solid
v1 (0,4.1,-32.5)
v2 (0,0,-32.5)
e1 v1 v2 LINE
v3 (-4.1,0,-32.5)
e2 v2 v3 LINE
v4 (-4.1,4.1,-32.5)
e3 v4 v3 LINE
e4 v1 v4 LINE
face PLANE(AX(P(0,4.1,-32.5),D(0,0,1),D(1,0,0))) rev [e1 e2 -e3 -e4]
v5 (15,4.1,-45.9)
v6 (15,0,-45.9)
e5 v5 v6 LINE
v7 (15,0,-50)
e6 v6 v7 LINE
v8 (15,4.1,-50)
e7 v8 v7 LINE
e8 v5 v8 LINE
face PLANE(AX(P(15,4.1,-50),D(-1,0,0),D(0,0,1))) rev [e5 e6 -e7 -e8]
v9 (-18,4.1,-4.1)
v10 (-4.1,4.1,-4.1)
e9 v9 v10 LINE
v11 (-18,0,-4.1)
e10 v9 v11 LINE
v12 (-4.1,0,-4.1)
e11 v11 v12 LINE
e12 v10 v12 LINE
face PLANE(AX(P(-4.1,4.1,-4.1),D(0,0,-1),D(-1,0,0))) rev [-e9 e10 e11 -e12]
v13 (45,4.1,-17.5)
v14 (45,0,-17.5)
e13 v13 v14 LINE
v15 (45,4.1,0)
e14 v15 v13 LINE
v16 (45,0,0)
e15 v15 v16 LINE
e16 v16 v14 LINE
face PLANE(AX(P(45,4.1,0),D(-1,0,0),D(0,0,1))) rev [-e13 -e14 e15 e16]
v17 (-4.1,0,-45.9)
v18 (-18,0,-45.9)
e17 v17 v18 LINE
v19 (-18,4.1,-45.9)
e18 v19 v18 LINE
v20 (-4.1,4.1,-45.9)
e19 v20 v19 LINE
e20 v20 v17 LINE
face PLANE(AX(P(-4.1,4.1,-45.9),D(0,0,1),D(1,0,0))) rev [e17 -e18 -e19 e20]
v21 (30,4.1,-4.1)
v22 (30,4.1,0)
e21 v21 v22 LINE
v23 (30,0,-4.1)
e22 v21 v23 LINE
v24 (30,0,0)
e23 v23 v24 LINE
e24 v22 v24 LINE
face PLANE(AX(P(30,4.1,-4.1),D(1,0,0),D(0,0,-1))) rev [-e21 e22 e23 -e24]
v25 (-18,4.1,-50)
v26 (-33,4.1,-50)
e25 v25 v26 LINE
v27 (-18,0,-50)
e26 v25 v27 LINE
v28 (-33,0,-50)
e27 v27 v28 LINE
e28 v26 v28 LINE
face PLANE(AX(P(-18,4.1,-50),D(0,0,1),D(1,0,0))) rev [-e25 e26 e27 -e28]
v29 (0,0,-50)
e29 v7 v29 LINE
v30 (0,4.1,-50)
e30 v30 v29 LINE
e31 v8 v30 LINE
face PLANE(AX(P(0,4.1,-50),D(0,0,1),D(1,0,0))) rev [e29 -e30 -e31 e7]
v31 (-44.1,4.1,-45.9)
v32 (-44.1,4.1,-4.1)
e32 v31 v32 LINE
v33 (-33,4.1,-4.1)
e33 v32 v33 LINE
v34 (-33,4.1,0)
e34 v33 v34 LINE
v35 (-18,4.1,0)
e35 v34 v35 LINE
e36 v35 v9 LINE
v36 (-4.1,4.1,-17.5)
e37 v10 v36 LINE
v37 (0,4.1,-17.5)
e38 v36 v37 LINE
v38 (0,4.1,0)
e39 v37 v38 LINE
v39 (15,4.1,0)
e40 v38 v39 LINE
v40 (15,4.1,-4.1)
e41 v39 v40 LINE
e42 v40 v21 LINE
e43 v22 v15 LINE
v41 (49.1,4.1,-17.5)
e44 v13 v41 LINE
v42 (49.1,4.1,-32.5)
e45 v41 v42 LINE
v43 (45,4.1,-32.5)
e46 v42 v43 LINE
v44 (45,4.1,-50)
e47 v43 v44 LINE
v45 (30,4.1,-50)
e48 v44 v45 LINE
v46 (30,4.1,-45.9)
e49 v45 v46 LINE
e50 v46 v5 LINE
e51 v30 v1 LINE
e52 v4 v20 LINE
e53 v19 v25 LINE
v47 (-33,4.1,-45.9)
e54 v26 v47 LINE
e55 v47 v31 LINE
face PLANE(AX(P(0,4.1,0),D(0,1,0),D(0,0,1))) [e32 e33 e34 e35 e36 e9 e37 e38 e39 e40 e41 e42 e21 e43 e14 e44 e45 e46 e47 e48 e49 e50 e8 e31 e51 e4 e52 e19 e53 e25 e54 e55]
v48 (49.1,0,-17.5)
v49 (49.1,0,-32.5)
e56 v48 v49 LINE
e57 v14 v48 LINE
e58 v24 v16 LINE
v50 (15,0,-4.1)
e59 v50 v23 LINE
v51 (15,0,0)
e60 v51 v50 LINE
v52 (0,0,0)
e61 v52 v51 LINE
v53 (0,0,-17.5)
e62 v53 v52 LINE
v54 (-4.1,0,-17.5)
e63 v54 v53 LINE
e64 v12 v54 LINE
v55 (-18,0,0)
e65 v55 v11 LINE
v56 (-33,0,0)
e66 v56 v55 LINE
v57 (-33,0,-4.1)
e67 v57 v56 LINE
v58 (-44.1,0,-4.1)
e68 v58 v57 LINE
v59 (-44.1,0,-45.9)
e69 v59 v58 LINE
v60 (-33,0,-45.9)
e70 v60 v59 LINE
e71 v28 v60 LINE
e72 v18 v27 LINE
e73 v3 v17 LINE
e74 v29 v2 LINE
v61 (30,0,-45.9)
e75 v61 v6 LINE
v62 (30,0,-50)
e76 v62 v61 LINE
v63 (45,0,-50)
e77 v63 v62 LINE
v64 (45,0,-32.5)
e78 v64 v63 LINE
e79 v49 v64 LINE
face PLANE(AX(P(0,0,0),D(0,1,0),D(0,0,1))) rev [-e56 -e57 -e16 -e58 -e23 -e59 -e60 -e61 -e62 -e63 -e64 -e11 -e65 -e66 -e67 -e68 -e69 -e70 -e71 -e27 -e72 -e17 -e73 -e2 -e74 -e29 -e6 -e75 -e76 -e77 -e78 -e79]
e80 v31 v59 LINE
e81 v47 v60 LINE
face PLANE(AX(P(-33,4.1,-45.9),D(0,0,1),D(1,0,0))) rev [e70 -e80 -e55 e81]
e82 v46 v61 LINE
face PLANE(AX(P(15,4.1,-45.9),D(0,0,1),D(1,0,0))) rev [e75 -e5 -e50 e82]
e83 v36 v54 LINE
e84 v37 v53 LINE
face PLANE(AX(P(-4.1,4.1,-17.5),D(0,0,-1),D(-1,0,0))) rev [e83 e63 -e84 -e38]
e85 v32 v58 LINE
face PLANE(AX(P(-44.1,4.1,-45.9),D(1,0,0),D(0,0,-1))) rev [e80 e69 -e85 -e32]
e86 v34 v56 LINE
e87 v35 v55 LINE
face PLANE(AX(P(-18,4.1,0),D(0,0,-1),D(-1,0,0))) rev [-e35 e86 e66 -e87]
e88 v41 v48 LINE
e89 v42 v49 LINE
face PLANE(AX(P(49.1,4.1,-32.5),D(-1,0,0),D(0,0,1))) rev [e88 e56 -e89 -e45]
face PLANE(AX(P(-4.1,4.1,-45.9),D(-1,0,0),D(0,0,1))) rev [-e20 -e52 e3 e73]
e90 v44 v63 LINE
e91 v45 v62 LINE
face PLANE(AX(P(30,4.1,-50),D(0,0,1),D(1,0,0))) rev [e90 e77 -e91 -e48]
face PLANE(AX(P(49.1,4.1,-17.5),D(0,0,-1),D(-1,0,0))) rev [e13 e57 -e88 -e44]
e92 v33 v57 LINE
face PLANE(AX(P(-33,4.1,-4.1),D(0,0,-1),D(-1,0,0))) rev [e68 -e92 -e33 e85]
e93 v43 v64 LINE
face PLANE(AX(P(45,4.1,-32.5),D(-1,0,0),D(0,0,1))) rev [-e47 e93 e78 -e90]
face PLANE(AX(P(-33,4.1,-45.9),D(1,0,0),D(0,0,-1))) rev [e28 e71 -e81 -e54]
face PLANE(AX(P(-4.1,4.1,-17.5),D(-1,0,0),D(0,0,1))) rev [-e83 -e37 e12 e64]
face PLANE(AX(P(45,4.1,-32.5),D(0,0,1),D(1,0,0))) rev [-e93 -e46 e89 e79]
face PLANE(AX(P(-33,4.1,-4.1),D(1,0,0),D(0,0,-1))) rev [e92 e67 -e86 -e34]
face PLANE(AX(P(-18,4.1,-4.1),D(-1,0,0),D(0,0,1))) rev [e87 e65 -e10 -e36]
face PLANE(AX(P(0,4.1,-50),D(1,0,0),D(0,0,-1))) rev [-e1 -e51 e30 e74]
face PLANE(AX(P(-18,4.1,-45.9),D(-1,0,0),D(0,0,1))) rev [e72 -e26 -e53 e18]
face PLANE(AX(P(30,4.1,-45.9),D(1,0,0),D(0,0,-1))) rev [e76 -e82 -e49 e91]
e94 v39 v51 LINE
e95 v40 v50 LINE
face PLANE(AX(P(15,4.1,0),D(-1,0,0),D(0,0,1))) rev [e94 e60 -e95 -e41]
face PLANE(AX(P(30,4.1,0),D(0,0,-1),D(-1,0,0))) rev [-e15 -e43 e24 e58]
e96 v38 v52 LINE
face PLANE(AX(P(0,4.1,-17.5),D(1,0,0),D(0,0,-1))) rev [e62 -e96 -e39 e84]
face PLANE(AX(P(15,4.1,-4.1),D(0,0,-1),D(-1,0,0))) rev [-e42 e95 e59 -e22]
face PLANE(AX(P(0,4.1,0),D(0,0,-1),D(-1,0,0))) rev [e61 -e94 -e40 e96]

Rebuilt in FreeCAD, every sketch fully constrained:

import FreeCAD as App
import Part
import Sketcher
from FreeCAD import Vector

doc = App.newDocument("Part")
body = doc.addObject("PartDesign::Body", "Body")

# Sketch on XZ plane
sketch1 = body.newObject("Sketcher::SketchObject", "Sketch")
sketch1.AttachmentSupport = (doc.getObject("XZ_Plane"), [""])
sketch1.MapMode = "FlatFace"
sketch1.addGeometry(Part.LineSegment(Vector(0, -32.5, 0), Vector(-4.1, -32.5, 0)), False)
sketch1.addGeometry(Part.LineSegment(Vector(-4.1, -32.5, 0), Vector(-4.1, -45.9, 0)), False)
sketch1.addGeometry(Part.LineSegment(Vector(-4.1, -45.9, 0), Vector(-18, -45.9, 0)), False)
sketch1.addGeometry(Part.LineSegment(Vector(-18, -45.9, 0), Vector(-18, -50, 0)), False)
sketch1.addGeometry(Part.LineSegment(Vector(-18, -50, 0), Vector(-33, -50, 0)), False)
sketch1.addGeometry(Part.LineSegment(Vector(-33, -50, 0), Vector(-33, -45.9, 0)), False)
sketch1.addGeometry(Part.LineSegment(Vector(-33, -45.9, 0), Vector(-44.1, -45.9, 0)), False)
sketch1.addGeometry(Part.LineSegment(Vector(-44.1, -45.9, 0), Vector(-44.1, -4.1, 0)), False)
sketch1.addGeometry(Part.LineSegment(Vector(-44.1, -4.1, 0), Vector(-33, -4.1, 0)), False)
sketch1.addGeometry(Part.LineSegment(Vector(-33, -4.1, 0), Vector(-33, 0, 0)), False)
sketch1.addGeometry(Part.LineSegment(Vector(-33, 0, 0), Vector(-18, 0, 0)), False)
sketch1.addGeometry(Part.LineSegment(Vector(-18, 0, 0), Vector(-18, -4.1, 0)), False)
sketch1.addGeometry(Part.LineSegment(Vector(-18, -4.1, 0), Vector(-4.1, -4.1, 0)), False)
sketch1.addGeometry(Part.LineSegment(Vector(-4.1, -4.1, 0), Vector(-4.1, -17.5, 0)), False)
sketch1.addGeometry(Part.LineSegment(Vector(-4.1, -17.5, 0), Vector(0, -17.5, 0)), False)
sketch1.addGeometry(Part.LineSegment(Vector(0, -17.5, 0), Vector(0, 0, 0)), False)
sketch1.addGeometry(Part.LineSegment(Vector(0, 0, 0), Vector(15, 0, 0)), False)
sketch1.addGeometry(Part.LineSegment(Vector(15, 0, 0), Vector(15, -4.1, 0)), False)
sketch1.addGeometry(Part.LineSegment(Vector(15, -4.1, 0), Vector(30, -4.1, 0)), False)
sketch1.addGeometry(Part.LineSegment(Vector(30, -4.1, 0), Vector(30, 0, 0)), False)
sketch1.addGeometry(Part.LineSegment(Vector(30, 0, 0), Vector(45, 0, 0)), False)
sketch1.addGeometry(Part.LineSegment(Vector(45, 0, 0), Vector(45, -17.5, 0)), False)
sketch1.addGeometry(Part.LineSegment(Vector(45, -17.5, 0), Vector(49.1, -17.5, 0)), False)
sketch1.addGeometry(Part.LineSegment(Vector(49.1, -17.5, 0), Vector(49.1, -32.5, 0)), False)
sketch1.addGeometry(Part.LineSegment(Vector(49.1, -32.5, 0), Vector(45, -32.5, 0)), False)
sketch1.addGeometry(Part.LineSegment(Vector(45, -32.5, 0), Vector(45, -50, 0)), False)
sketch1.addGeometry(Part.LineSegment(Vector(45, -50, 0), Vector(30, -50, 0)), False)
sketch1.addGeometry(Part.LineSegment(Vector(30, -50, 0), Vector(30, -45.9, 0)), False)
sketch1.addGeometry(Part.LineSegment(Vector(30, -45.9, 0), Vector(15, -45.9, 0)), False)
sketch1.addGeometry(Part.LineSegment(Vector(15, -45.9, 0), Vector(15, -50, 0)), False)
sketch1.addGeometry(Part.LineSegment(Vector(15, -50, 0), Vector(0, -50, 0)), False)
sketch1.addGeometry(Part.LineSegment(Vector(0, -50, 0), Vector(0, -32.5, 0)), False)
sketch1.addConstraint(Sketcher.Constraint("Coincident", 0, 2, 1, 1))
sketch1.addConstraint(Sketcher.Constraint("Coincident", 1, 2, 2, 1))
sketch1.addConstraint(Sketcher.Constraint("Coincident", 2, 2, 3, 1))
sketch1.addConstraint(Sketcher.Constraint("Coincident", 3, 2, 4, 1))
sketch1.addConstraint(Sketcher.Constraint("Coincident", 4, 2, 5, 1))
sketch1.addConstraint(Sketcher.Constraint("Coincident", 5, 2, 6, 1))
sketch1.addConstraint(Sketcher.Constraint("Coincident", 6, 2, 7, 1))
sketch1.addConstraint(Sketcher.Constraint("Coincident", 7, 2, 8, 1))
sketch1.addConstraint(Sketcher.Constraint("Coincident", 8, 2, 9, 1))
sketch1.addConstraint(Sketcher.Constraint("Coincident", 9, 2, 10, 1))
sketch1.addConstraint(Sketcher.Constraint("Coincident", 10, 2, 11, 1))
sketch1.addConstraint(Sketcher.Constraint("Coincident", 11, 2, 12, 1))
sketch1.addConstraint(Sketcher.Constraint("Coincident", 12, 2, 13, 1))
sketch1.addConstraint(Sketcher.Constraint("Coincident", 13, 2, 14, 1))
sketch1.addConstraint(Sketcher.Constraint("Coincident", 14, 2, 15, 1))
sketch1.addConstraint(Sketcher.Constraint("Coincident", 15, 2, 16, 1))
sketch1.addConstraint(Sketcher.Constraint("Coincident", 16, 2, 17, 1))
sketch1.addConstraint(Sketcher.Constraint("Coincident", 17, 2, 18, 1))
sketch1.addConstraint(Sketcher.Constraint("Coincident", 18, 2, 19, 1))
sketch1.addConstraint(Sketcher.Constraint("Coincident", 19, 2, 20, 1))
sketch1.addConstraint(Sketcher.Constraint("Coincident", 20, 2, 21, 1))
sketch1.addConstraint(Sketcher.Constraint("Coincident", 21, 2, 22, 1))
sketch1.addConstraint(Sketcher.Constraint("Coincident", 22, 2, 23, 1))
sketch1.addConstraint(Sketcher.Constraint("Coincident", 23, 2, 24, 1))
sketch1.addConstraint(Sketcher.Constraint("Coincident", 24, 2, 25, 1))
sketch1.addConstraint(Sketcher.Constraint("Coincident", 25, 2, 26, 1))
sketch1.addConstraint(Sketcher.Constraint("Coincident", 26, 2, 27, 1))
sketch1.addConstraint(Sketcher.Constraint("Coincident", 27, 2, 28, 1))
sketch1.addConstraint(Sketcher.Constraint("Coincident", 28, 2, 29, 1))
sketch1.addConstraint(Sketcher.Constraint("Coincident", 29, 2, 30, 1))
sketch1.addConstraint(Sketcher.Constraint("Coincident", 30, 2, 31, 1))
sketch1.addConstraint(Sketcher.Constraint("Coincident", 31, 2, 0, 1))
sketch1.addConstraint(Sketcher.Constraint("Horizontal", 0))
sketch1.addConstraint(Sketcher.Constraint("Vertical", 1))
sketch1.addConstraint(Sketcher.Constraint("Horizontal", 2))
sketch1.addConstraint(Sketcher.Constraint("Vertical", 3))
sketch1.addConstraint(Sketcher.Constraint("Horizontal", 4))
sketch1.addConstraint(Sketcher.Constraint("Vertical", 5))
sketch1.addConstraint(Sketcher.Constraint("Horizontal", 6))
sketch1.addConstraint(Sketcher.Constraint("Vertical", 7))
sketch1.addConstraint(Sketcher.Constraint("Horizontal", 8))
sketch1.addConstraint(Sketcher.Constraint("Vertical", 9))
sketch1.addConstraint(Sketcher.Constraint("Horizontal", 10))
sketch1.addConstraint(Sketcher.Constraint("Vertical", 11))
sketch1.addConstraint(Sketcher.Constraint("Horizontal", 12))
sketch1.addConstraint(Sketcher.Constraint("Vertical", 13))
sketch1.addConstraint(Sketcher.Constraint("Horizontal", 14))
sketch1.addConstraint(Sketcher.Constraint("Vertical", 15))
sketch1.addConstraint(Sketcher.Constraint("Horizontal", 16))
sketch1.addConstraint(Sketcher.Constraint("Vertical", 17))
sketch1.addConstraint(Sketcher.Constraint("Horizontal", 18))
sketch1.addConstraint(Sketcher.Constraint("Vertical", 19))
sketch1.addConstraint(Sketcher.Constraint("Horizontal", 20))
sketch1.addConstraint(Sketcher.Constraint("Vertical", 21))
sketch1.addConstraint(Sketcher.Constraint("Horizontal", 22))
sketch1.addConstraint(Sketcher.Constraint("Vertical", 23))
sketch1.addConstraint(Sketcher.Constraint("Horizontal", 24))
sketch1.addConstraint(Sketcher.Constraint("Vertical", 25))
sketch1.addConstraint(Sketcher.Constraint("Horizontal", 26))
sketch1.addConstraint(Sketcher.Constraint("Vertical", 27))
sketch1.addConstraint(Sketcher.Constraint("Horizontal", 28))
sketch1.addConstraint(Sketcher.Constraint("Vertical", 29))
sketch1.addConstraint(Sketcher.Constraint("Horizontal", 30))
sketch1.addConstraint(Sketcher.Constraint("Vertical", 31))
sketch1.addConstraint(Sketcher.Constraint("Coincident", 15, 2, -1, 1))
sketch1.addConstraint(Sketcher.Constraint("PointOnObject", 9, 2, -1))
sketch1.addConstraint(Sketcher.Constraint("PointOnObject", 19, 2, -1))
sketch1.addConstraint(Sketcher.Constraint("PointOnObject", 30, 2, -2))
sketch1.addConstraint(Sketcher.Constraint("Horizontal", 2, 2, 5, 2))
sketch1.addConstraint(Sketcher.Constraint("Horizontal", 8, 2, 11, 2))
sketch1.addConstraint(Sketcher.Constraint("Horizontal", 12, 2, 17, 2))
sketch1.addConstraint(Sketcher.Constraint("Horizontal", 14, 2, 21, 2))
sketch1.addConstraint(Sketcher.Constraint("Horizontal", 0, 2, 23, 2))
sketch1.addConstraint(Sketcher.Constraint("Horizontal", 4, 2, 25, 2))
sketch1.addConstraint(Sketcher.Constraint("Horizontal", 6, 2, 27, 2))
sketch1.addConstraint(Sketcher.Constraint("Horizontal", 26, 2, 29, 2))
sketch1.addConstraint(Sketcher.Constraint("Vertical", 5, 2, 8, 2))
sketch1.addConstraint(Sketcher.Constraint("Vertical", 3, 2, 10, 2))
sketch1.addConstraint(Sketcher.Constraint("Vertical", 1, 2, 12, 2))
sketch1.addConstraint(Sketcher.Constraint("Vertical", 21, 2, 24, 2))
sketch1.addConstraint(Sketcher.Constraint("Vertical", 19, 2, 26, 2))
sketch1.addConstraint(Sketcher.Constraint("Vertical", 17, 2, 28, 2))
sketch1.addConstraint(Sketcher.Constraint("Equal", 10, 16))
sketch1.addConstraint(Sketcher.Constraint("Equal", 16, 18))
sketch1.addConstraint(Sketcher.Constraint("Equal", 18, 20))
sketch1.addConstraint(Sketcher.Constraint("Equal", 14, 22))
sketch1.addConstraint(Sketcher.Constraint("Equal", 24, 3))
sketch1.addConstraint(Sketcher.Constraint("Equal", 5, 9))
sketch1.addConstraint(Sketcher.Constraint("Equal", 1, 13))
sketch1.addConstraint(Sketcher.Constraint("Equal", 30, 23))
sketch1.addConstraint(Sketcher.Constraint("DistanceX", 4, 2, 4, 1, 15.0))
sketch1.addConstraint(Sketcher.Constraint("DistanceX", 0, 2, 0, 1, 4.1))
sketch1.addConstraint(Sketcher.Constraint("DistanceX", 2, 2, 2, 1, 13.9))
sketch1.addConstraint(Sketcher.Constraint("DistanceX", 6, 2, 6, 1, 11.1))
sketch1.addConstraint(Sketcher.Constraint("DistanceY", 1, 2, 1, 1, 13.4))
pad1 = body.newObject("PartDesign::Pad", "Pad")
pad1.Profile = sketch1
pad1.Length = 4.1
pad1.Reversed = True

doc.recompute()
